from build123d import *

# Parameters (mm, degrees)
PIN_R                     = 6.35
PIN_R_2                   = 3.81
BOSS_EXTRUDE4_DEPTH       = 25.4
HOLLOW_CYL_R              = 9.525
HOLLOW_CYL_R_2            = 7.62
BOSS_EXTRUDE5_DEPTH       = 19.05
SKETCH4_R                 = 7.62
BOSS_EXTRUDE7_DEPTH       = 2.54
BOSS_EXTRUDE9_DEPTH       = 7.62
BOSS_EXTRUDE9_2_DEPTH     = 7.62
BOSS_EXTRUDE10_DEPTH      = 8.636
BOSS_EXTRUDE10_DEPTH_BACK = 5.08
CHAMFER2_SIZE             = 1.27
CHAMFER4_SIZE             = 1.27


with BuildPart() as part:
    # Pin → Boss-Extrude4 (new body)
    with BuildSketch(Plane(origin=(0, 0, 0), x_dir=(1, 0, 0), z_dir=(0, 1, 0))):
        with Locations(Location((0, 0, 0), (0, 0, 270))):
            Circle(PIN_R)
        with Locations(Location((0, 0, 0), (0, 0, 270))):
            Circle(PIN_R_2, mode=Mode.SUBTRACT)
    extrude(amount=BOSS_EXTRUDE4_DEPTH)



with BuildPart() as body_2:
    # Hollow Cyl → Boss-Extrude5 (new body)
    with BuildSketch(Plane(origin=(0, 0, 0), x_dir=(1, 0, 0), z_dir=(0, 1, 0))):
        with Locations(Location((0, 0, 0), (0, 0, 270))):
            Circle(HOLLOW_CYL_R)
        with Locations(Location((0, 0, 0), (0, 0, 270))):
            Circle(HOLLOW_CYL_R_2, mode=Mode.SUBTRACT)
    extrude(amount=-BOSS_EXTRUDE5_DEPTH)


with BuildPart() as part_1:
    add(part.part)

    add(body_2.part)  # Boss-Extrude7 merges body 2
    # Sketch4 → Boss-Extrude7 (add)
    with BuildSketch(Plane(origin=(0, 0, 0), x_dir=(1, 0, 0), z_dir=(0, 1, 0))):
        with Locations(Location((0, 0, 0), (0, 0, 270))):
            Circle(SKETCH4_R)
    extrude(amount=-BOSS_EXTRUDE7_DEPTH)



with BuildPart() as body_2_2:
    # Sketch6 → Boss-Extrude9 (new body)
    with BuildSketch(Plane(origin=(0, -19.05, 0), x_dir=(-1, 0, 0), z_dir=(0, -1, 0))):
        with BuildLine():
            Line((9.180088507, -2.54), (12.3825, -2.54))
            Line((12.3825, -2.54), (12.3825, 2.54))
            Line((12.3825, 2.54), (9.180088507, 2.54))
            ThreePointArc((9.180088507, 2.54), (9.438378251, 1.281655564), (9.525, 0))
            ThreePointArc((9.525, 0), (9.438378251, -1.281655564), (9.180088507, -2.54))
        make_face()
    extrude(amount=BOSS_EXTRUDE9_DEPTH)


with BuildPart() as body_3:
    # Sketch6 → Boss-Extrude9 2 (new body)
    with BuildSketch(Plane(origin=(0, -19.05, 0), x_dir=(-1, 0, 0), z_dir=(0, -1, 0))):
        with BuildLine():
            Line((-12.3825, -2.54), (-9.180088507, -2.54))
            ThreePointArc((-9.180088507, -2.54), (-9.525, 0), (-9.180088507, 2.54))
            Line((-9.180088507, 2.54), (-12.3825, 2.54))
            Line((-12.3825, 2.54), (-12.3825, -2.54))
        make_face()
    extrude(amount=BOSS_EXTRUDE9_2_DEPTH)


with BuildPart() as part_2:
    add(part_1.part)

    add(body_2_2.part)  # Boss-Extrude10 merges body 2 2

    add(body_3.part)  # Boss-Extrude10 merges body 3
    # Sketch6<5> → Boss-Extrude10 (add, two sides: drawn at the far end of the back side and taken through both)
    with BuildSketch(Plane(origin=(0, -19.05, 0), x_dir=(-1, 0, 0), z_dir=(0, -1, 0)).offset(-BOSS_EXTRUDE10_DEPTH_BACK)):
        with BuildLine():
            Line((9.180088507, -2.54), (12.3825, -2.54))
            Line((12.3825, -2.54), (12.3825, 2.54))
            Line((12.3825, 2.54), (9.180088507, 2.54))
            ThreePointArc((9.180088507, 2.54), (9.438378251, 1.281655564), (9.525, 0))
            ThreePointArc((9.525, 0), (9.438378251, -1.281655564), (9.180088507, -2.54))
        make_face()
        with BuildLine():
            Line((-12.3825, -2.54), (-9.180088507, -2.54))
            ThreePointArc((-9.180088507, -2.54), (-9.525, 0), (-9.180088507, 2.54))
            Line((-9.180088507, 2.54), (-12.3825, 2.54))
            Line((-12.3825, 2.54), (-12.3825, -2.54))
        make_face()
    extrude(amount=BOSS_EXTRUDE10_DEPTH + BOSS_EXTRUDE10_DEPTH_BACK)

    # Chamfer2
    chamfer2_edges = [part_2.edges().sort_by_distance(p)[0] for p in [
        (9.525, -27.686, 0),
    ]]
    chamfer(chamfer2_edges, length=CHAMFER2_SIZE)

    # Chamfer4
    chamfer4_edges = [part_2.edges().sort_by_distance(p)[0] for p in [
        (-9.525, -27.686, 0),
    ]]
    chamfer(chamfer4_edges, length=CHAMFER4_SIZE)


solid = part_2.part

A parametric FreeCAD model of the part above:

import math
import FreeCAD as App
import Part
import Sketcher
from FreeCAD import Vector
Q = App.Units.Quantity


def edges_at(feature, points):
    """Names of the edges that pass closest to the given points."""
    edges = feature.Shape.Edges
    near = lambda p: min(range(len(edges)), key=lambda i: edges[i].distToShape(Part.Vertex(*p))[0])
    return sorted({f"Edge{near(p) + 1}" for p in points})

doc = App.newDocument("Part")
params = doc.addObject("Spreadsheet::Sheet", "Params")
for row, (alias, value) in enumerate([
    ("sketch1_diameter", "0.5 in"),
    ("sketch1_diameter2", "0.3 in"),
    ("pad1_length", "1 in"),
    ("sketch2_diameter", "0.6 in"),
    ("sketch2_diameter2", "0.75 in"),
    ("pad2_length", "0.75 in"),
    ("sketch3_diameter", "0.6 in"),
    ("pad3_length", "0.1 in"),
    ("sketch4_height", "0.2 in"),
    ("sketch4_radius", "0.375 in"),
    ("pad4_length", "0.3 in"),
    ("sketch5_height", "0.2 in"),
    ("sketch5_radius", "0.375 in"),
    ("pad5_length", "0.3 in"),
    ("sketch6_height", "0.2 in"),
    ("sketch6_radius", "0.375 in"),
    ("pad6_length", "0.34 in"),
    ("pad6_length2", "0.2 in"),
    ("chamfer_size", "0.05 in"),
    ("chamfer2_size", "0.05 in"),
], start=1):
    params.set(f"A{row}", alias)
    params.set(f"B{row}", "=" + value)
    params.setAlias(f"B{row}", alias)

body = doc.addObject("PartDesign::Body", "Body")

sketch1 = body.newObject("Sketcher::SketchObject", "Sketch")
sketch1.AttachmentSupport = (doc.getObject("XZ_Plane"), [""])
sketch1.MapMode = "FlatFace"
sketch1.addGeometry([
    Part.Circle(Vector(0, 0, 0), Vector(0, 0, 1), 6.3),
    Part.Circle(Vector(0, 0, 0), Vector(0, 0, 1), 3.8),
], False)
sketch1.addConstraint([
    Sketcher.Constraint("Coincident", 0, 3, -1, 1),
    Sketcher.Constraint("Coincident", 1, 3, -1, 1),
    Sketcher.Constraint("Diameter", 0, Q("0.5 in")),
    Sketcher.Constraint("Diameter", 1, Q("0.3 in")),
])
sketch1.setExpression("Constraints[2]", "Params.sketch1_diameter")
sketch1.setExpression("Constraints[3]", "Params.sketch1_diameter2")
pad1 = body.newObject("PartDesign::Pad", "Pad")
pad1.Profile = sketch1
pad1.setExpression("Length", "Params.pad1_length")
pad1.Reversed = True
body2 = doc.addObject("PartDesign::Body", "Body001")

sketch2 = body2.newObject("Sketcher::SketchObject", "Sketch001")
sketch2.AttachmentSupport = (doc.getObject("XZ_Plane001"), [""])
sketch2.MapMode = "FlatFace"
sketch2.addGeometry([
    Part.Circle(Vector(0, 0, 0), Vector(0, 0, 1), 10),
    Part.Circle(Vector(0, 0, 0), Vector(0, 0, 1), 8),
], False)
sketch2.addConstraint([
    Sketcher.Constraint("Coincident", 0, 3, -1, 1),
    Sketcher.Constraint("Coincident", 1, 3, -1, 1),
    Sketcher.Constraint("Diameter", 1, Q("0.6 in")),
    Sketcher.Constraint("Diameter", 0, Q("0.75 in")),
])
sketch2.setExpression("Constraints[2]", "Params.sketch2_diameter")
sketch2.setExpression("Constraints[3]", "Params.sketch2_diameter2")
pad2 = body2.newObject("PartDesign::Pad", "Pad001")
pad2.Profile = sketch2
pad2.setExpression("Length", "Params.pad2_length")
body.AllowCompound = True
doc.recompute()

boolean = body.newObject("PartDesign::Boolean", "Boolean")
boolean.Type = "Fuse"
boolean.addObjects([body2])

sketch3 = body.newObject("Sketcher::SketchObject", "Sketch002")
sketch3.AttachmentSupport = (doc.getObject("XZ_Plane"), [""])
sketch3.MapMode = "FlatFace"
sketch3.addGeometry(Part.Circle(Vector(0, 0, 0), Vector(0, 0, 1), 8), False)
sketch3.addConstraint([
    Sketcher.Constraint("Coincident", 0, 3, -1, 1),
    Sketcher.Constraint("Diameter", 0, Q("0.6 in")),
])
sketch3.setExpression("Constraints[1]", "Params.sketch3_diameter")
pad3 = body.newObject("PartDesign::Pad", "Pad002")
pad3.Profile = sketch3
pad3.setExpression("Length", "Params.pad3_length")
body3 = doc.addObject("PartDesign::Body", "Body002")

sketch4 = body3.newObject("Sketcher::SketchObject", "Sketch003")
sketch4.AttachmentSupport = (doc.getObject("XZ_Plane002"), [""])
sketch4.MapMode = "FlatFace"
sketch4.AttachmentOffset = App.Placement(Vector(0, 0, 0.75 * 25.4), App.Rotation())
sketch4.addGeometry([
    Part.LineSegment(Vector(-9.2, 2.5, 0), Vector(-12.4, 2.5, 0)),
    Part.LineSegment(Vector(-12.4, 2.5, 0), Vector(-12.4, -2.5, 0)),
    Part.LineSegment(Vector(-12.4, -2.5, 0), Vector(-9.2, -2.5, 0)),
    Part.ArcOfCircle(Part.Circle(Vector(0, 0, 0), Vector(0, 0, 1), 9.5), math.radians(-180), math.radians(-164.53)),
    Part.ArcOfCircle(Part.Circle(Vector(0, 0, 0), Vector(0, 0, 1), 9.5), math.radians(164.53), math.radians(180)),
], False)
sketch4.addConstraint([
    Sketcher.Constraint("Coincident", 0, 2, 1, 1),
    Sketcher.Constraint("Coincident", 1, 2, 2, 1),
    Sketcher.Constraint("Coincident", 2, 2, 3, 2),
    Sketcher.Constraint("Tangent", 3, 1, 4, 2),
    Sketcher.Constraint("Coincident", 4, 1, 0, 1),
    Sketcher.Constraint("Horizontal", 0),
    Sketcher.Constraint("Vertical", 1),
    Sketcher.Constraint("Horizontal", 2),
    Sketcher.Constraint("Coincident", 3, 3, -1, 1),
    Sketcher.Constraint("Equal", 3, 4),
    Sketcher.Constraint("PointOnObject", 3, 1, -1),
    Sketcher.Constraint("Vertical", 2, 2, 4, 1),
    Sketcher.Constraint("DistanceY", 1, 2, 1, 1, Q("0.2 in")),
    Sketcher.Constraint("Radius", 3, Q("0.375 in")),
    Sketcher.Constraint("DistanceX", 0, 2, -1, 1, Q("0.4875 in")),
])
sketch4.setExpression("Constraints[12]", "Params.sketch4_height")
sketch4.setExpression("Constraints[13]", "Params.sketch4_radius")
pad4 = body3.newObject("PartDesign::Pad", "Pad003")
pad4.Profile = sketch4
pad4.setExpression("Length", "Params.pad4_length")
body4 = doc.addObject("PartDesign::Body", "Body003")

sketch5 = body4.newObject("Sketcher::SketchObject", "Sketch004")
sketch5.AttachmentSupport = (doc.getObject("XZ_Plane003"), [""])
sketch5.MapMode = "FlatFace"
sketch5.AttachmentOffset = App.Placement(Vector(0, 0, 0.75 * 25.4), App.Rotation())
sketch5.addGeometry([
    Part.LineSegment(Vector(12.4, 2.5, 0), Vector(9.2, 2.5, 0)),
    Part.ArcOfCircle(Part.Circle(Vector(0, 0, 0), Vector(0, 0, 1), 9.5), math.radians(-15), math.radians(15)),
    Part.LineSegment(Vector(9.2, -2.5, 0), Vector(12.4, -2.5, 0)),
    Part.LineSegment(Vector(12.4, -2.5, 0), Vector(12.4, 2.5, 0)),
], False)
sketch5.addConstraint([
    Sketcher.Constraint("Coincident", 0, 2, 1, 2),
    Sketcher.Constraint("Coincident", 1, 1, 2, 1),
    Sketcher.Constraint("Coincident", 2, 2, 3, 1),
    Sketcher.Constraint("Coincident", 3, 2, 0, 1),
    Sketcher.Constraint("Horizontal", 0),
    Sketcher.Constraint("Horizontal", 2),
    Sketcher.Constraint("Vertical", 3),
    Sketcher.Constraint("Coincident", 1, 3, -1, 1),
    Sketcher.Constraint("Vertical", 0, 2, 1, 1),
    Sketcher.Constraint("DistanceY", 3, 1, 3, 2, Q("0.2 in")),
    Sketcher.Constraint("Radius", 1, Q("0.375 in")),
    Sketcher.Constraint("DistanceX", -1, 1, 2, 2, Q("0.4875 in")),
])
sketch5.setExpression("Constraints[9]", "Params.sketch5_height")
sketch5.setExpression("Constraints[10]", "Params.sketch5_radius")
pad5 = body4.newObject("PartDesign::Pad", "Pad004")
pad5.Profile = sketch5
pad5.setExpression("Length", "Params.pad5_length")
body.AllowCompound = True
doc.recompute()

boolean2 = body.newObject("PartDesign::Boolean", "Boolean001")
boolean2.Type = "Fuse"
boolean2.addObjects([body3])
doc.recompute()

boolean3 = body.newObject("PartDesign::Boolean", "Boolean002")
boolean3.Type = "Fuse"
boolean3.addObjects([body4])

sketch6 = body.newObject("Sketcher::SketchObject", "Sketch005")
sketch6.AttachmentSupport = (doc.getObject("XZ_Plane"), [""])
sketch6.MapMode = "FlatFace"
sketch6.AttachmentOffset = App.Placement(Vector(0, 0, 0.75 * 25.4), App.Rotation())
sketch6.addGeometry([
    Part.LineSegment(Vector(-9.2, 2.5, 0), Vector(-12.4, 2.5, 0)),
    Part.LineSegment(Vector(-12.4, 2.5, 0), Vector(-12.4, -2.5, 0)),
    Part.LineSegment(Vector(-12.4, -2.5, 0), Vector(-9.2, -2.5, 0)),
    Part.ArcOfCircle(Part.Circle(Vector(0, 0, 0), Vector(0, 0, 1), 9.5), math.radians(-180), math.radians(-164.53)),
    Part.ArcOfCircle(Part.Circle(Vector(0, 0, 0), Vector(0, 0, 1), 9.5), math.radians(164.53), math.radians(180)),
    Part.LineSegment(Vector(12.4, 2.5, 0), Vector(9.2, 2.5, 0)),
    Part.ArcOfCircle(Part.Circle(Vector(0, 0, 0), Vector(0, 0, 1), 9.5), math.radians(-15), math.radians(15)),
    Part.LineSegment(Vector(9.2, -2.5, 0), Vector(12.4, -2.5, 0)),
    Part.LineSegment(Vector(12.4, -2.5, 0), Vector(12.4, 2.5, 0)),
], False)
sketch6.addConstraint([
    Sketcher.Constraint("Coincident", 0, 2, 1, 1),
    Sketcher.Constraint("Coincident", 1, 2, 2, 1),
    Sketcher.Constraint("Coincident", 2, 2, 3, 2),
    Sketcher.Constraint("Tangent", 3, 1, 4, 2),
    Sketcher.Constraint("Coincident", 4, 1, 0, 1),
    Sketcher.Constraint("Coincident", 5, 2, 6, 2),
    Sketcher.Constraint("Coincident", 6, 1, 7, 1),
    Sketcher.Constraint("Coincident", 7, 2, 8, 1),
    Sketcher.Constraint("Coincident", 8, 2, 5, 1),
    Sketcher.Constraint("Horizontal", 0),
    Sketcher.Constraint("Vertical", 1),
    Sketcher.Constraint("Horizontal", 2),
    Sketcher.Constraint("Horizontal", 5),
    Sketcher.Constraint("Horizontal", 7),
    Sketcher.Constraint("Vertical", 8),
    Sketcher.Constraint("Coincident", 3, 3, -1, 1),
    Sketcher.Constraint("Coincident", 6, 3, -1, 1),
    Sketcher.Constraint("Equal", 3, 4),
    Sketcher.Constraint("Equal", 4, 6),
    Sketcher.Constraint("Symmetric", 0, 2, 7, 2, -1, 1),
    Sketcher.Constraint("PointOnObject", 3, 1, -1),
    Sketcher.Constraint("Horizontal", 4, 1, 5, 2),
    Sketcher.Constraint("Horizontal", 2, 2, 6, 1),
    Sketcher.Constraint("DistanceY", 1, 2, 1, 1, Q("0.2 in")),
    Sketcher.Constraint("Radius", 3, Q("0.375 in")),
    Sketcher.Constraint("DistanceX", 0, 2, -1, 1, Q("0.4875 in")),
])
sketch6.setExpression("Constraints[23]", "Params.sketch6_height")
sketch6.setExpression("Constraints[24]", "Params.sketch6_radius")
pad6 = body.newObject("PartDesign::Pad", "Pad005")
pad6.Profile = sketch6
pad6.Type = "TwoLengths"
pad6.setExpression("Length", "Params.pad6_length")
pad6.setExpression("Length2", "Params.pad6_length2")
doc.recompute()

chamfer = body.newObject("PartDesign::Chamfer", "Chamfer")
chamfer.Base = (pad6, edges_at(pad6, [(9.525, -27.686, 0)]))
chamfer.setExpression("Size", "Params.chamfer_size")
doc.recompute()

chamfer2 = body.newObject("PartDesign::Chamfer", "Chamfer001")
chamfer2.Base = (chamfer, edges_at(chamfer, [(-9.438, -27.686, -1.282)]))
chamfer2.setExpression("Size", "Params.chamfer2_size")

doc.recompute()
